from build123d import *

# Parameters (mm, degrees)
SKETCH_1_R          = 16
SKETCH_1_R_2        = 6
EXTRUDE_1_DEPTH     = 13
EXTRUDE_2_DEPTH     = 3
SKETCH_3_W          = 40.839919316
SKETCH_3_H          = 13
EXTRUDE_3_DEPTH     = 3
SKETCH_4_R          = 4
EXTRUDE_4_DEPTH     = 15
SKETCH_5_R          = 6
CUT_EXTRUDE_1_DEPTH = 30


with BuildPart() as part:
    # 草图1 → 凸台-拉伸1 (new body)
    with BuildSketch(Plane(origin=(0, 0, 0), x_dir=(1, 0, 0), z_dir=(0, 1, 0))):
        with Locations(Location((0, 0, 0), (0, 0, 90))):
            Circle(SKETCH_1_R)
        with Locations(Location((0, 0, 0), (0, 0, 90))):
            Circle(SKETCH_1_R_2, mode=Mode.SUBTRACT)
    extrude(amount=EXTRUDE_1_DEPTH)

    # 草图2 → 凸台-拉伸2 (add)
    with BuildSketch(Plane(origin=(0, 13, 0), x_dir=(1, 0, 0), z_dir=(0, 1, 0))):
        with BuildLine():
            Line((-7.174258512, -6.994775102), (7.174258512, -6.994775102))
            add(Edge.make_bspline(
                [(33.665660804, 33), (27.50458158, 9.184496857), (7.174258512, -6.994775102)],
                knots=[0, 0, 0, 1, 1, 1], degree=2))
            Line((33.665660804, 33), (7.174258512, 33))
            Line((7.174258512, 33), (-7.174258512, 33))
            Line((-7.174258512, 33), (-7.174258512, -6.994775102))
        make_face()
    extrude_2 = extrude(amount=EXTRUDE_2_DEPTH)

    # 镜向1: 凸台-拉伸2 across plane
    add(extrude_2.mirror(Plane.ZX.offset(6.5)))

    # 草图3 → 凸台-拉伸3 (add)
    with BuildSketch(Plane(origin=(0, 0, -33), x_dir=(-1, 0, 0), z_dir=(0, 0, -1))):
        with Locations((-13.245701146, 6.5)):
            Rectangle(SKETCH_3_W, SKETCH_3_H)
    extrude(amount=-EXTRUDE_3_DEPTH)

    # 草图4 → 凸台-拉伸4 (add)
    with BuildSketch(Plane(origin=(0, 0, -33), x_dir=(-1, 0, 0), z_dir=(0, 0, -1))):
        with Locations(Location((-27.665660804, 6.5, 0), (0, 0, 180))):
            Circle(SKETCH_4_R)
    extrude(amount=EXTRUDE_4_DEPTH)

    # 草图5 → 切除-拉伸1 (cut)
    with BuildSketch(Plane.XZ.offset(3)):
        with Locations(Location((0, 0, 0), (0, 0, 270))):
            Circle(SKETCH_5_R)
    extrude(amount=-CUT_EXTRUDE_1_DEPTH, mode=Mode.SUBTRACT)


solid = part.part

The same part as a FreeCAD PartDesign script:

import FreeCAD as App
import Part
import Sketcher

V = App.Vector
Q = App.Units.Quantity


def add_polygon(sketch, points):
    """Adds a closed chain of lines whose ends are joined by coincident constraints."""
    first, n = sketch.GeometryCount, len(points)
    for a, b in zip(points, points[1:] + points[:1]):
        sketch.addGeometry(Part.LineSegment(App.Vector(*a, 0), App.Vector(*b, 0)), False)
    for i in range(n):
        sketch.addConstraint(Sketcher.Constraint("Coincident", first + i, 2, first + (i + 1) % n, 1))

doc = App.newDocument("Part")
body = doc.addObject("PartDesign::Body", "Body")

sketch1 = body.newObject("Sketcher::SketchObject", "Sketch")
sketch1.AttachmentSupport = (doc.getObject("XZ_Plane"), [""])
sketch1.MapMode = "FlatFace"
sketch1.addGeometry([
    Part.Circle(V(0, 0, 0), V(0, 0, 1), 16),
    Part.Circle(V(0, 0, 0), V(0, 0, 1), 6),
], False)
sketch1.addConstraint([
    Sketcher.Constraint("Coincident", 0, 3, -1, 1),
    Sketcher.Constraint("Coincident", 1, 3, -1, 1),
    Sketcher.Constraint("Diameter", 0, Q("32 mm")),
    Sketcher.Constraint("Diameter", 1, Q("12 mm")),
])
pad1 = body.newObject("PartDesign::Pad", "Pad")
pad1.Profile = sketch1
pad1.Length = 13
pad1.Reversed = True

sketch2 = body.newObject("Sketcher::SketchObject", "Sketch001")
sketch2.AttachmentSupport = (doc.getObject("XZ_Plane"), [""])
sketch2.MapMode = "FlatFace"
sketch2.AttachmentOffset = App.Placement(V(0, 0, -13), App.Rotation())
sketch2.addGeometry([
    Part.LineSegment(V(-7.174259, 6.994775, 0), V(7.174259, 6.994775, 0)),
    Part.BSplineCurve([V(33.665661, -33, 0), V(27.504582, -9.184497, 0), V(7.174259, 6.994775, 0)], [3, 3], [0, 1], False, 2, [1, 1, 1], False),
    Part.LineSegment(V(33.665661, -33, 0), V(-7.174259, -33, 0)),
    Part.LineSegment(V(-7.174259, -33, 0), V(-7.174259, 6.994775, 0)),
], False)
sketch2.addConstraint([
    Sketcher.Constraint("Block", 1),
    Sketcher.Constraint("Coincident", 0, 2, 1, 2),
    Sketcher.Constraint("Coincident", 1, 1, 2, 1),
    Sketcher.Constraint("Coincident", 2, 2, 3, 1),
    Sketcher.Constraint("Coincident", 3, 2, 0, 1),
    Sketcher.Constraint("Horizontal", 0),
    Sketcher.Constraint("Horizontal", 2),
    Sketcher.Constraint("Vertical", 3),
    Sketcher.Constraint("DistanceX", 2, 2, 2, 1, Q("40.839919 mm")),
])
pad2 = body.newObject("PartDesign::Pad", "Pad001")
pad2.Profile = sketch2
pad2.Length = 3
pad2.Reversed = True
doc.recompute()

datumplane = body.newObject("PartDesign::Plane", "DatumPlane")
datumplane.AttachmentSupport = (doc.getObject("XZ_Plane"), [""])
datumplane.MapMode = "FlatFace"
datumplane.AttachmentOffset = App.Placement(V(0, 0, -6.5), App.Rotation())
mirrored = body.newObject("PartDesign::Mirrored", "Mirrored")
mirrored.Originals = [pad2]
mirrored.MirrorPlane = (datumplane, [""])
body.Tip = mirrored

sketch3 = body.newObject("Sketcher::SketchObject", "Sketch002")
sketch3.AttachmentSupport = (doc.getObject("XY_Plane"), [""])
sketch3.MapMode = "FlatFace"
sketch3.AttachmentOffset = App.Placement(V(0, 0, -33), App.Rotation())
add_polygon(sketch3, [(34, 13), (34, 0), (-7, 0), (-7, 13)])
sketch3.addConstraint([
    Sketcher.Constraint("Vertical", 0),
    Sketcher.Constraint("Horizontal", 1),
    Sketcher.Constraint("Vertical", 2),
    Sketcher.Constraint("Horizontal", 3),
    Sketcher.Constraint("PointOnObject", 0, 2, -1),
    Sketcher.Constraint("DistanceY", 0, 2, 0, 1, Q("13 mm")),
    Sketcher.Constraint("DistanceX", 1, 2, 1, 1, Q("40.839919 mm")),
    Sketcher.Constraint("DistanceX", -1, 1, 0, 2, Q("33.665661 mm")),
])
pad3 = body.newObject("PartDesign::Pad", "Pad002")
pad3.Profile = sketch3
pad3.Length = 3

sketch4 = body.newObject("Sketcher::SketchObject", "Sketch003")
sketch4.AttachmentSupport = (doc.getObject("XY_Plane"), [""])
sketch4.MapMode = "FlatFace"
sketch4.AttachmentOffset = App.Placement(V(0, 0, -33), App.Rotation())
sketch4.addGeometry(Part.Circle(V(27.7, 6.5, 0), V(0, 0, 1), 4), False)
sketch4.addConstraint([
    Sketcher.Constraint("Diameter", 0, Q("8 mm")),
    Sketcher.Constraint("DistanceY", -1, 1, 0, 3, Q("6.5 mm")),
    Sketcher.Constraint("DistanceX", -1, 1, 0, 3, Q("27.665661 mm")),
])
pad4 = body.newObject("PartDesign::Pad", "Pad003")
pad4.Profile = sketch4
pad4.Length = 15
pad4.Reversed = True

sketch5 = body.newObject("Sketcher::SketchObject", "Sketch004")
sketch5.AttachmentSupport = (doc.getObject("XZ_Plane"), [""])
sketch5.MapMode = "FlatFace"
sketch5.AttachmentOffset = App.Placement(V(0, 0, 3), App.Rotation())
sketch5.addGeometry(Part.Circle(V(0, 0, 0), V(0, 0, 1), 6), False)
sketch5.addConstraint([
    Sketcher.Constraint("Coincident", 0, 3, -1, 1),
    Sketcher.Constraint("Diameter", 0, Q("12 mm")),
])
pocket1 = body.newObject("PartDesign::Pocket", "Pocket")
pocket1.Profile = sketch5
pocket1.Length = 30

doc.recompute()
